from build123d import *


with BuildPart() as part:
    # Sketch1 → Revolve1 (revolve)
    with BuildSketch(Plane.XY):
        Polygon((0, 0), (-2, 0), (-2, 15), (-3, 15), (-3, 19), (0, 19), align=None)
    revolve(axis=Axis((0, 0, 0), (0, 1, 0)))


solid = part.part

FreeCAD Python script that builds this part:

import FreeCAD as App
import Part
import Sketcher
from FreeCAD import Vector
Q = App.Units.Quantity


def add_polygon(sketch, points):
    """Adds a closed chain of lines whose ends are joined by coincident constraints."""
    first, n = sketch.GeometryCount, len(points)
    for a, b in zip(points, points[1:] + points[:1]):
        sketch.addGeometry(Part.LineSegment(App.Vector(*a, 0), App.Vector(*b, 0)), False)
    for i in range(n):
        sketch.addConstraint(Sketcher.Constraint("Coincident", first + i, 2, first + (i + 1) % n, 1))

doc = App.newDocument("Part")
body = doc.addObject("PartDesign::Body", "Body")

sketch1 = body.newObject("Sketcher::SketchObject", "Sketch")
sketch1.AttachmentSupport = (doc.getObject("XY_Plane"), [""])
sketch1.MapMode = "FlatFace"
add_polygon(sketch1, [(-2, 0), (0, 0), (0, 19), (-3, 19), (-3, 15), (-2, 15)])
sketch1.addConstraint(Sketcher.Constraint("Horizontal", 0))
sketch1.addConstraint(Sketcher.Constraint("Vertical", 1))
sketch1.addConstraint(Sketcher.Constraint("Horizontal", 2))
sketch1.addConstraint(Sketcher.Constraint("Vertical", 3))
sketch1.addConstraint(Sketcher.Constraint("Horizontal", 4))
sketch1.addConstraint(Sketcher.Constraint("Vertical", 5))
sketch1.addConstraint(Sketcher.Constraint("Coincident", 0, 2, -1, 1))
sketch1.addConstraint(Sketcher.Constraint("DistanceX", 0, 1, 0, 2, Q("2 mm")))
sketch1.addConstraint(Sketcher.Constraint("DistanceX", 2, 2, 2, 1, Q("3 mm")))
sketch1.addConstraint(Sketcher.Constraint("DistanceY", 1, 1, 1, 2, Q("19 mm")))
sketch1.addConstraint(Sketcher.Constraint("DistanceY", 3, 2, 3, 1, Q("4 mm")))
revolution = body.newObject("PartDesign::Revolution", "Revolution")
revolution.Profile = sketch1
revolution.ReferenceAxis = (sketch1, ["V_Axis"])
revolution.Angle = 360

doc.recompute()
